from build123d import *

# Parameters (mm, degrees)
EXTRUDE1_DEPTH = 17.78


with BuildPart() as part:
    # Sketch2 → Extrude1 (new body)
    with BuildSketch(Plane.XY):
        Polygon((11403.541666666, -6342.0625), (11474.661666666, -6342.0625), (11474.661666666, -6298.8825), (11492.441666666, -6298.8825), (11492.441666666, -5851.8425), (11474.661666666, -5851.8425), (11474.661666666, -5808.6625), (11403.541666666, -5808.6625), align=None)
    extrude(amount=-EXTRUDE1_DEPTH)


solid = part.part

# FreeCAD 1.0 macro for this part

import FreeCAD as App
import Part
import Sketcher

V = App.Vector
Q = App.Units.Quantity


def add_polygon(sketch, points):
    """Adds a closed chain of lines whose ends are joined by coincident constraints."""
    first, n = sketch.GeometryCount, len(points)
    for a, b in zip(points, points[1:] + points[:1]):
        sketch.addGeometry(Part.LineSegment(App.Vector(*a, 0), App.Vector(*b, 0)), False)
    for i in range(n):
        sketch.addConstraint(Sketcher.Constraint("Coincident", first + i, 2, first + (i + 1) % n, 1))

doc = App.newDocument("Part")
body = doc.addObject("PartDesign::Body", "Body")

sketch1 = body.newObject("Sketcher::SketchObject", "Sketch")
sketch1.AttachmentSupport = (doc.getObject("XY_Plane"), [""])
sketch1.MapMode = "FlatFace"
add_polygon(sketch1, [(11404, -6342), (11475, -6342), (11475, -6299), (11492, -6299), (11492, -5852), (11475, -5852), (11475, -5809), (11404, -5809)])
sketch1.addConstraint([
    Sketcher.Constraint("Horizontal", 0),
    Sketcher.Constraint("Vertical", 1),
    Sketcher.Constraint("Horizontal", 2),
    Sketcher.Constraint("Vertical", 3),
    Sketcher.Constraint("Horizontal", 4),
    Sketcher.Constraint("Vertical", 5),
    Sketcher.Constraint("Horizontal", 6),
    Sketcher.Constraint("Vertical", 7),
    Sketcher.Constraint("Vertical", 1, 2, 4, 2),
    Sketcher.Constraint("Equal", 1, 5),
    Sketcher.Constraint("DistanceY", 7, 2, 7, 1, Q("21 in")),
    Sketcher.Constraint("DistanceX", 0, 1, 0, 2, Q("2.8 in")),
    Sketcher.Constraint("DistanceX", 2, 1, 2, 2, Q("0.7 in")),
    Sketcher.Constraint("DistanceY", 1, 1, 1, 2, Q("1.7 in")),
    Sketcher.Constraint("DistanceY", 0, 2, -1, 1, Q("249.6875 in")),
    Sketcher.Constraint("DistanceX", -1, 1, 0, 2, Q("11474.661667 mm")),
])
pad1 = body.newObject("PartDesign::Pad", "Pad")
pad1.Profile = sketch1
pad1.Length = Q("0.7 in")
pad1.Reversed = True

doc.recompute()
